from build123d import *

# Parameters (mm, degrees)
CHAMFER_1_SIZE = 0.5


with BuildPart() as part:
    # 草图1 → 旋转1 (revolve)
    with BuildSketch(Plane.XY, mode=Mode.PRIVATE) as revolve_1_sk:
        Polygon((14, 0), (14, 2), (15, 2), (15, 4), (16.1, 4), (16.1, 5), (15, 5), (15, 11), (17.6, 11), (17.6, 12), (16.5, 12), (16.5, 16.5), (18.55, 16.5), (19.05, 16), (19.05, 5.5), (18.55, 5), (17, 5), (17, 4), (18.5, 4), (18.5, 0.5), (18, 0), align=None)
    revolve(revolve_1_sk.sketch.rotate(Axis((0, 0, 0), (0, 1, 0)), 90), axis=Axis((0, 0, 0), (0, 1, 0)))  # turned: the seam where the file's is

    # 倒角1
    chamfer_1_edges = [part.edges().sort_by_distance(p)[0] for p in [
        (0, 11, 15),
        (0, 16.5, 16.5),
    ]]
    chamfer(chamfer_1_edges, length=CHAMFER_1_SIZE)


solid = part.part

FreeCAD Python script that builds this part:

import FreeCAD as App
import Part
import Sketcher

V = App.Vector


def edges_at(feature, points):
    """Names of the edges that pass closest to the given points."""
    edges = feature.Shape.Edges
    near = lambda p: min(range(len(edges)), key=lambda i: edges[i].distToShape(Part.Vertex(*p))[0])
    return sorted({f"Edge{near(p) + 1}" for p in points})


def add_polygon(sketch, points):
    """Adds a closed chain of lines whose ends are joined by coincident constraints."""
    first, n = sketch.GeometryCount, len(points)
    for a, b in zip(points, points[1:] + points[:1]):
        sketch.addGeometry(Part.LineSegment(App.Vector(*a, 0), App.Vector(*b, 0)), False)
    for i in range(n):
        sketch.addConstraint(Sketcher.Constraint("Coincident", first + i, 2, first + (i + 1) % n, 1))

doc = App.newDocument("Part")
body = doc.addObject("PartDesign::Body", "Body")

# Sketch on XY plane
sketch1 = body.newObject("Sketcher::SketchObject", "Sketch")
sketch1.AttachmentSupport = (doc.getObject("XY_Plane"), [""])
sketch1.MapMode = "FlatFace"
add_polygon(sketch1, [(14, 2), (14, 0), (18, 0), (18.5, 0.5), (18.5, 4), (17, 4), (17, 5), (18.55, 5), (19.05, 5.5), (19.05, 16), (18.55, 16.5), (16.5, 16.5), (16.5, 12), (17.6, 12), (17.6, 11), (15, 11), (15, 5), (16.1, 5), (16.1, 4), (15, 4), (15, 2)])  # lines 0-20
sketch1.addConstraint(Sketcher.Constraint("Vertical", 0))
sketch1.addConstraint(Sketcher.Constraint("Horizontal", 1))
sketch1.addConstraint(Sketcher.Constraint("Vertical", 3))
sketch1.addConstraint(Sketcher.Constraint("Horizontal", 4))
sketch1.addConstraint(Sketcher.Constraint("Vertical", 5))
sketch1.addConstraint(Sketcher.Constraint("Horizontal", 6))
sketch1.addConstraint(Sketcher.Constraint("Vertical", 8))
sketch1.addConstraint(Sketcher.Constraint("Horizontal", 10))
sketch1.addConstraint(Sketcher.Constraint("Vertical", 11))
sketch1.addConstraint(Sketcher.Constraint("Horizontal", 12))
sketch1.addConstraint(Sketcher.Constraint("Vertical", 13))
sketch1.addConstraint(Sketcher.Constraint("Horizontal", 14))
sketch1.addConstraint(Sketcher.Constraint("Vertical", 15))
sketch1.addConstraint(Sketcher.Constraint("Horizontal", 16))
sketch1.addConstraint(Sketcher.Constraint("Vertical", 17))
sketch1.addConstraint(Sketcher.Constraint("Horizontal", 18))
sketch1.addConstraint(Sketcher.Constraint("Vertical", 19))
sketch1.addConstraint(Sketcher.Constraint("Horizontal", 20))
sketch1.addConstraint(Sketcher.Constraint("PointOnObject", 0, 2, -1))
sketch1.addConstraint(Sketcher.Constraint("Parallel", 2, 7))
sketch1.addConstraint(Sketcher.Constraint("Perpendicular", 7, 9))
sketch1.addConstraint(Sketcher.Constraint("Horizontal", 6, 2, 15, 2))
sketch1.addConstraint(Sketcher.Constraint("Horizontal", 4, 2, 17, 2))
sketch1.addConstraint(Sketcher.Constraint("Vertical", 6, 2, 9, 2))
sketch1.addConstraint(Sketcher.Constraint("Vertical", 15, 2, 18, 2))
sketch1.addConstraint(Sketcher.Constraint("Equal", 12, 16))
sketch1.addConstraint(Sketcher.Constraint("Equal", 20, 5))
sketch1.addConstraint(Sketcher.Constraint("Equal", 5, 13))
sketch1.addConstraint(Sketcher.Constraint("Equal", 0, 19))
sketch1.addConstraint(Sketcher.Constraint("Equal", 2, 7))
sketch1.addConstraint(Sketcher.Constraint("Equal", 7, 9))
sketch1.addConstraint(Sketcher.Constraint("DistanceX", 1, 1, 1, 2, 4.0))
sketch1.addConstraint(Sketcher.Constraint("DistanceX", 20, 2, 20, 1, 1.0))
sketch1.addConstraint(Sketcher.Constraint("DistanceY", 0, 2, 0, 1, 2.0))
sketch1.addConstraint(Sketcher.Constraint("DistanceY", 15, 2, 15, 1, 6.0))
sketch1.addConstraint(Sketcher.Constraint("DistanceX", 4, 2, 4, 1, 1.5))
sketch1.addConstraint(Sketcher.Constraint("DistanceX", 12, 1, 12, 2, 1.1))
sketch1.addConstraint(Sketcher.Constraint("DistanceX", 14, 2, 14, 1, 2.6))
sketch1.addConstraint(Sketcher.Constraint("DistanceY", 3, 1, 3, 2, 3.5))
sketch1.addConstraint(Sketcher.Constraint("DistanceY", 8, 1, 8, 2, 10.5))
sketch1.addConstraint(Sketcher.Constraint("DistanceX", -1, 1, 0, 2, 14.0))
sketch1.addConstraint(Sketcher.Constraint("DistanceX", 6, 1, 6, 2, 1.55))
revolution = body.newObject("PartDesign::Revolution", "Revolution")
revolution.Profile = sketch1
revolution.ReferenceAxis = (sketch1, ["V_Axis"])
revolution.Angle = 360
doc.recompute()

chamfer = body.newObject("PartDesign::Chamfer", "Chamfer")
chamfer.Base = (revolution, edges_at(revolution, [(0, 11, 15), (0, 16.5, 16.5)]))
chamfer.Size = 0.5

doc.recompute()
